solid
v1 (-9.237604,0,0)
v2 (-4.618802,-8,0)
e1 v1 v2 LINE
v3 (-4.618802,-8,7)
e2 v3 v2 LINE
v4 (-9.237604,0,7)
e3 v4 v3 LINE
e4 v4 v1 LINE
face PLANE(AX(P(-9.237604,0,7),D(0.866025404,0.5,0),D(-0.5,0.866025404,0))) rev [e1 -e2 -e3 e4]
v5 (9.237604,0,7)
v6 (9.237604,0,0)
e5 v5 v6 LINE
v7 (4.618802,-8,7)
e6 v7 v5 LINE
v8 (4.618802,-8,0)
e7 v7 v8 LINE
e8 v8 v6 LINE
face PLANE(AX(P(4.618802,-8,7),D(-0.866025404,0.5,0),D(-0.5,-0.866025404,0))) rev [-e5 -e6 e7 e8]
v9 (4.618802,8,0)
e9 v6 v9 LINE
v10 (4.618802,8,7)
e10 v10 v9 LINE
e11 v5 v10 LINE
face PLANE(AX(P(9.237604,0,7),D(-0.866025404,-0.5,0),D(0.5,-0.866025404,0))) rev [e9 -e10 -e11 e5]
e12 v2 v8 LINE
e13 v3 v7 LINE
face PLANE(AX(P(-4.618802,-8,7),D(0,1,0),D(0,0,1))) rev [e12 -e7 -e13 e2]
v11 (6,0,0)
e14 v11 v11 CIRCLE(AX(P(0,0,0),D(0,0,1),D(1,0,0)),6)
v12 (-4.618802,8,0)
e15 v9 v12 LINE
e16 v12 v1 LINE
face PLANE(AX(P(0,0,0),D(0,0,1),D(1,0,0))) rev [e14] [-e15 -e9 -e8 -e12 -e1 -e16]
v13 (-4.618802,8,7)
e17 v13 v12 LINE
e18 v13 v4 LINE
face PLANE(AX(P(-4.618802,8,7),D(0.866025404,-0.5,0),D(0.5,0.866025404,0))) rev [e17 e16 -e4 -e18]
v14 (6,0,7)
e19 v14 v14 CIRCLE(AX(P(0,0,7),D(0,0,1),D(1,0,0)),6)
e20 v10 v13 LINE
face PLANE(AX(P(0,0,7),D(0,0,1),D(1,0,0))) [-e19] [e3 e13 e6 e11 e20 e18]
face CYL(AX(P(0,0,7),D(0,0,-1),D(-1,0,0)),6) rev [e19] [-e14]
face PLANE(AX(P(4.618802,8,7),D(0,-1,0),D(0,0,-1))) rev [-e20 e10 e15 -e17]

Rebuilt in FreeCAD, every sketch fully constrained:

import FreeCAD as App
import Part
import Sketcher
from FreeCAD import Vector
Q = App.Units.Quantity

doc = App.newDocument("Part")
params = doc.addObject("Spreadsheet::Sheet", "Params")
for row, (alias, value) in enumerate([
    ("sketch1_diameter", "12 mm"),
    ("pad1_length", "7 mm"),
], start=1):
    params.set(f"A{row}", alias)
    params.set(f"B{row}", "=" + value)
    params.setAlias(f"B{row}", alias)

body = doc.addObject("PartDesign::Body", "Body")

sketch1 = body.newObject("Sketcher::SketchObject", "Sketch")
sketch1.AttachmentSupport = (doc.getObject("XY_Plane"), [""])
sketch1.MapMode = "FlatFace"
sketch1.addGeometry(Part.LineSegment(Vector(9, 0, 0), Vector(5, 8, 0)), False)
sketch1.addGeometry(Part.LineSegment(Vector(5, 8, 0), Vector(-5, 8, 0)), False)
sketch1.addGeometry(Part.LineSegment(Vector(-5, 8, 0), Vector(-9, 0, 0)), False)
sketch1.addGeometry(Part.LineSegment(Vector(-9, 0, 0), Vector(-5, -8, 0)), False)
sketch1.addGeometry(Part.LineSegment(Vector(-5, -8, 0), Vector(5, -8, 0)), False)
sketch1.addGeometry(Part.LineSegment(Vector(5, -8, 0), Vector(9, 0, 0)), False)
sketch1.addGeometry(Part.Circle(Vector(0, 0, 0), Vector(0, 0, 1), 6), False)
sketch1.addConstraint(Sketcher.Constraint("Coincident", 0, 2, 1, 1))
sketch1.addConstraint(Sketcher.Constraint("Coincident", 1, 2, 2, 1))
sketch1.addConstraint(Sketcher.Constraint("Coincident", 2, 2, 3, 1))
sketch1.addConstraint(Sketcher.Constraint("Coincident", 3, 2, 4, 1))
sketch1.addConstraint(Sketcher.Constraint("Coincident", 4, 2, 5, 1))
sketch1.addConstraint(Sketcher.Constraint("Coincident", 5, 2, 0, 1))
sketch1.addConstraint(Sketcher.Constraint("Horizontal", 1))
sketch1.addConstraint(Sketcher.Constraint("Horizontal", 4))
sketch1.addConstraint(Sketcher.Constraint("Coincident", 6, 3, -1, 1))
sketch1.addConstraint(Sketcher.Constraint("Symmetric", 0, 2, 3, 2, -1, 1))
sketch1.addConstraint(Sketcher.Constraint("Symmetric", 2, 2, 5, 2, -1, 1))
sketch1.addConstraint(Sketcher.Constraint("PointOnObject", 2, 2, -1))
sketch1.addConstraint(Sketcher.Constraint("Parallel", 2, 5))
sketch1.addConstraint(Sketcher.Constraint("Vertical", 1, 2, 3, 2))
sketch1.addConstraint(Sketcher.Constraint("Diameter", 6, Q("12 mm")))
sketch1.addConstraint(Sketcher.Constraint("Angle", 0, Q("120 deg")))
sketch1.addConstraint(Sketcher.Constraint("DistanceY", -1, 1, 0, 2, Q("8 mm")))
sketch1.addConstraint(Sketcher.Constraint("DistanceX", 1, 2, 1, 1, Q("9.237604 mm")))
sketch1.setExpression("Constraints[14]", "Params.sketch1_diameter")
pad1 = body.newObject("PartDesign::Pad", "Pad")
pad1.Profile = sketch1
pad1.setExpression("Length", "Params.pad1_length")

doc.recompute()
